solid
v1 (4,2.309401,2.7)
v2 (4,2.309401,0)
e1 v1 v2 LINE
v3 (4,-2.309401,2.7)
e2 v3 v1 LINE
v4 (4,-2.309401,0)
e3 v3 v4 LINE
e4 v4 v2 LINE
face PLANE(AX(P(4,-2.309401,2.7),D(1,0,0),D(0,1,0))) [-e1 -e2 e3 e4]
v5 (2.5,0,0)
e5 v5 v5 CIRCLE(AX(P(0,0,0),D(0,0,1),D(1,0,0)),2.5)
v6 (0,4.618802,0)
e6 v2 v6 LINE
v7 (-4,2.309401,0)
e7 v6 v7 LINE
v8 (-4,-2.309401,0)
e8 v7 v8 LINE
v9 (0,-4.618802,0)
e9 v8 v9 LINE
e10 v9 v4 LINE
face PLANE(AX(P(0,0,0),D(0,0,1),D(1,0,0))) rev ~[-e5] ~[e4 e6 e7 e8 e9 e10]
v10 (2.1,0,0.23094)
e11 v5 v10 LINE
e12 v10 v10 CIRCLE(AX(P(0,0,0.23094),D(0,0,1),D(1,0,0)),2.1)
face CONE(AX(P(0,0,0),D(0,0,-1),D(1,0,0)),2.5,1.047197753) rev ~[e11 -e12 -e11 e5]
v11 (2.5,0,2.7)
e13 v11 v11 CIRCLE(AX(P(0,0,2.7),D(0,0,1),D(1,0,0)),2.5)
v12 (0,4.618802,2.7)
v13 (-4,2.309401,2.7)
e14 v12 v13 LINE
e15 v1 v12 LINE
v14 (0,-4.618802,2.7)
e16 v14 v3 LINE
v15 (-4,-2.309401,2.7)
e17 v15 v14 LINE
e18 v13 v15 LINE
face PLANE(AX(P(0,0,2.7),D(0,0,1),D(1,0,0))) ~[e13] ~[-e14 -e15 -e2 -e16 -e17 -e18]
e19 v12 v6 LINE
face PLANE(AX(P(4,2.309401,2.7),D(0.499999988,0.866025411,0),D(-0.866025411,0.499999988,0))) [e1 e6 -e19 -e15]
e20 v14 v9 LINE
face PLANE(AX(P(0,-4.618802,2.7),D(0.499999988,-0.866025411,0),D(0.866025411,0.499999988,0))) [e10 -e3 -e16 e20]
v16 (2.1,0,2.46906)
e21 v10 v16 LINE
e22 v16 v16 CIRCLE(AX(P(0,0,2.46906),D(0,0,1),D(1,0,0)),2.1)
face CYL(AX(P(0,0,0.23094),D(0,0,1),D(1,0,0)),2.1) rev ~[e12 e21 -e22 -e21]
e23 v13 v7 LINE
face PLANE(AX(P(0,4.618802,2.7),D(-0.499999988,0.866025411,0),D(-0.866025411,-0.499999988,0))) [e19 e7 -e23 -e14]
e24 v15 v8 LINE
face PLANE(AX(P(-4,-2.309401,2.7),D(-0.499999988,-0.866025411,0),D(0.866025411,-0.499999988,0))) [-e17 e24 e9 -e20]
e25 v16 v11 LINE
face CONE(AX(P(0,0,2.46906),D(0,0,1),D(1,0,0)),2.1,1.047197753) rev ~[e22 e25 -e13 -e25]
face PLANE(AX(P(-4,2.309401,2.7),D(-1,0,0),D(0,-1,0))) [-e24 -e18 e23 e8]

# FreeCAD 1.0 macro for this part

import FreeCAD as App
import Part
import Sketcher
from FreeCAD import Vector
Q = App.Units.Quantity


def add_polygon(sketch, points):
    """Adds a closed chain of lines whose ends are joined by coincident constraints."""
    first, n = sketch.GeometryCount, len(points)
    for a, b in zip(points, points[1:] + points[:1]):
        sketch.addGeometry(Part.LineSegment(App.Vector(*a, 0), App.Vector(*b, 0)), False)
    for i in range(n):
        sketch.addConstraint(Sketcher.Constraint("Coincident", first + i, 2, first + (i + 1) % n, 1))

doc = App.newDocument("Part")
params = doc.addObject("Spreadsheet::Sheet", "Params")
for row, (alias, value) in enumerate([
    ("sketch1_width", "2.5 mm"),
    ("sketch1_height", "2.7 mm"),
    ("revolution_angle", "360 deg"),
    ("sketch2_diameter", "10 mm"),
    ("pocket1_length", "2.7 mm"),
], start=1):
    params.set(f"A{row}", alias)
    params.set(f"B{row}", "=" + value)
    params.setAlias(f"B{row}", alias)

body = doc.addObject("PartDesign::Body", "Body")

# Sketch on XZ plane
sketch1 = doc.addObject("Sketcher::SketchObject", "Sketch")
body.addObject(sketch1)
sketch1.AttachmentSupport = (doc.XZ_Plane, [""])
sketch1.MapMode = "FlatFace"
add_polygon(sketch1, [(2.1, 0.23), (2.5, 0), (5, 0), (5, 2.7), (2.5, 2.7), (2.1, 2.47)])  # lines 0-5
sketch1.addConstraint([
    Sketcher.Constraint("Horizontal", 1),
    Sketcher.Constraint("Vertical", 2),
    Sketcher.Constraint("Horizontal", 3),
    Sketcher.Constraint("Vertical", 5),
    Sketcher.Constraint("PointOnObject", 0, 2, -1),
    Sketcher.Constraint("Vertical", 0, 2, 3, 2),
    Sketcher.Constraint("Equal", 0, 4),
    Sketcher.Constraint("Angle", 0, Q("-29.999988 deg")),
    Sketcher.Constraint("DistanceX", 1, 1, 1, 2, 2.5),
    Sketcher.Constraint("DistanceY", 2, 1, 2, 2, 2.7),
    Sketcher.Constraint("DistanceX", -1, 1, 1, 2, 5.0),
    Sketcher.Constraint("DistanceX", -1, 1, 4, 2, 2.1),
])
sketch1.setExpression("Constraints[14]", "Params.sketch1_width")
sketch1.setExpression("Constraints[15]", "Params.sketch1_height")
revolution = doc.addObject("PartDesign::Revolution", "Revolution")
body.addObject(revolution)
revolution.Profile = sketch1
revolution.ReferenceAxis = (sketch1, ["V_Axis"])
revolution.setExpression("Angle", "Params.revolution_angle")

# Sketch on XY plane
sketch2 = doc.addObject("Sketcher::SketchObject", "Sketch001")
body.addObject(sketch2)
sketch2.AttachmentSupport = (doc.XY_Plane, [""])
sketch2.MapMode = "FlatFace"
sketch2.AttachmentOffset = App.Placement(Vector(0, 0, 2.7), App.Rotation())
sketch2.addGeometry(Part.Circle(Vector(0, 0, 0), Vector(0, 0, 1), 5), False)  # 0
add_polygon(sketch2, [(4, 2.3), (4, -2.3), (0, -4.6), (-4, -2.3), (-4, 2.3), (0, 4.6)])  # lines 1-6
sketch2.addConstraint([
    Sketcher.Constraint("Vertical", 1),
    Sketcher.Constraint("Vertical", 4),
    Sketcher.Constraint("Coincident", 0, 3, -1, 1),
    Sketcher.Constraint("Symmetric", 1, 2, 4, 2, -1, 1),
    Sketcher.Constraint("Symmetric", 2, 2, 5, 2, -1, 1),
    Sketcher.Constraint("PointOnObject", 2, 2, -2),
    Sketcher.Constraint("Parallel", 3, 6),
    Sketcher.Constraint("Horizontal", 1, 2, 3, 2),
    Sketcher.Constraint("Diameter", 0, 10.0),
    Sketcher.Constraint("Angle", 2, Q("-150.000001 deg")),
    Sketcher.Constraint("DistanceX", -1, 1, 1, 2, 4.0),
    Sketcher.Constraint("DistanceY", 1, 2, 1, 1, 4.618802),
])
sketch2.setExpression("Constraints[14]", "Params.sketch2_diameter")
pocket1 = doc.addObject("PartDesign::Pocket", "Pocket")
body.addObject(pocket1)
pocket1.Profile = sketch2
pocket1.setExpression("Length", "Params.pocket1_length")

doc.recompute()
